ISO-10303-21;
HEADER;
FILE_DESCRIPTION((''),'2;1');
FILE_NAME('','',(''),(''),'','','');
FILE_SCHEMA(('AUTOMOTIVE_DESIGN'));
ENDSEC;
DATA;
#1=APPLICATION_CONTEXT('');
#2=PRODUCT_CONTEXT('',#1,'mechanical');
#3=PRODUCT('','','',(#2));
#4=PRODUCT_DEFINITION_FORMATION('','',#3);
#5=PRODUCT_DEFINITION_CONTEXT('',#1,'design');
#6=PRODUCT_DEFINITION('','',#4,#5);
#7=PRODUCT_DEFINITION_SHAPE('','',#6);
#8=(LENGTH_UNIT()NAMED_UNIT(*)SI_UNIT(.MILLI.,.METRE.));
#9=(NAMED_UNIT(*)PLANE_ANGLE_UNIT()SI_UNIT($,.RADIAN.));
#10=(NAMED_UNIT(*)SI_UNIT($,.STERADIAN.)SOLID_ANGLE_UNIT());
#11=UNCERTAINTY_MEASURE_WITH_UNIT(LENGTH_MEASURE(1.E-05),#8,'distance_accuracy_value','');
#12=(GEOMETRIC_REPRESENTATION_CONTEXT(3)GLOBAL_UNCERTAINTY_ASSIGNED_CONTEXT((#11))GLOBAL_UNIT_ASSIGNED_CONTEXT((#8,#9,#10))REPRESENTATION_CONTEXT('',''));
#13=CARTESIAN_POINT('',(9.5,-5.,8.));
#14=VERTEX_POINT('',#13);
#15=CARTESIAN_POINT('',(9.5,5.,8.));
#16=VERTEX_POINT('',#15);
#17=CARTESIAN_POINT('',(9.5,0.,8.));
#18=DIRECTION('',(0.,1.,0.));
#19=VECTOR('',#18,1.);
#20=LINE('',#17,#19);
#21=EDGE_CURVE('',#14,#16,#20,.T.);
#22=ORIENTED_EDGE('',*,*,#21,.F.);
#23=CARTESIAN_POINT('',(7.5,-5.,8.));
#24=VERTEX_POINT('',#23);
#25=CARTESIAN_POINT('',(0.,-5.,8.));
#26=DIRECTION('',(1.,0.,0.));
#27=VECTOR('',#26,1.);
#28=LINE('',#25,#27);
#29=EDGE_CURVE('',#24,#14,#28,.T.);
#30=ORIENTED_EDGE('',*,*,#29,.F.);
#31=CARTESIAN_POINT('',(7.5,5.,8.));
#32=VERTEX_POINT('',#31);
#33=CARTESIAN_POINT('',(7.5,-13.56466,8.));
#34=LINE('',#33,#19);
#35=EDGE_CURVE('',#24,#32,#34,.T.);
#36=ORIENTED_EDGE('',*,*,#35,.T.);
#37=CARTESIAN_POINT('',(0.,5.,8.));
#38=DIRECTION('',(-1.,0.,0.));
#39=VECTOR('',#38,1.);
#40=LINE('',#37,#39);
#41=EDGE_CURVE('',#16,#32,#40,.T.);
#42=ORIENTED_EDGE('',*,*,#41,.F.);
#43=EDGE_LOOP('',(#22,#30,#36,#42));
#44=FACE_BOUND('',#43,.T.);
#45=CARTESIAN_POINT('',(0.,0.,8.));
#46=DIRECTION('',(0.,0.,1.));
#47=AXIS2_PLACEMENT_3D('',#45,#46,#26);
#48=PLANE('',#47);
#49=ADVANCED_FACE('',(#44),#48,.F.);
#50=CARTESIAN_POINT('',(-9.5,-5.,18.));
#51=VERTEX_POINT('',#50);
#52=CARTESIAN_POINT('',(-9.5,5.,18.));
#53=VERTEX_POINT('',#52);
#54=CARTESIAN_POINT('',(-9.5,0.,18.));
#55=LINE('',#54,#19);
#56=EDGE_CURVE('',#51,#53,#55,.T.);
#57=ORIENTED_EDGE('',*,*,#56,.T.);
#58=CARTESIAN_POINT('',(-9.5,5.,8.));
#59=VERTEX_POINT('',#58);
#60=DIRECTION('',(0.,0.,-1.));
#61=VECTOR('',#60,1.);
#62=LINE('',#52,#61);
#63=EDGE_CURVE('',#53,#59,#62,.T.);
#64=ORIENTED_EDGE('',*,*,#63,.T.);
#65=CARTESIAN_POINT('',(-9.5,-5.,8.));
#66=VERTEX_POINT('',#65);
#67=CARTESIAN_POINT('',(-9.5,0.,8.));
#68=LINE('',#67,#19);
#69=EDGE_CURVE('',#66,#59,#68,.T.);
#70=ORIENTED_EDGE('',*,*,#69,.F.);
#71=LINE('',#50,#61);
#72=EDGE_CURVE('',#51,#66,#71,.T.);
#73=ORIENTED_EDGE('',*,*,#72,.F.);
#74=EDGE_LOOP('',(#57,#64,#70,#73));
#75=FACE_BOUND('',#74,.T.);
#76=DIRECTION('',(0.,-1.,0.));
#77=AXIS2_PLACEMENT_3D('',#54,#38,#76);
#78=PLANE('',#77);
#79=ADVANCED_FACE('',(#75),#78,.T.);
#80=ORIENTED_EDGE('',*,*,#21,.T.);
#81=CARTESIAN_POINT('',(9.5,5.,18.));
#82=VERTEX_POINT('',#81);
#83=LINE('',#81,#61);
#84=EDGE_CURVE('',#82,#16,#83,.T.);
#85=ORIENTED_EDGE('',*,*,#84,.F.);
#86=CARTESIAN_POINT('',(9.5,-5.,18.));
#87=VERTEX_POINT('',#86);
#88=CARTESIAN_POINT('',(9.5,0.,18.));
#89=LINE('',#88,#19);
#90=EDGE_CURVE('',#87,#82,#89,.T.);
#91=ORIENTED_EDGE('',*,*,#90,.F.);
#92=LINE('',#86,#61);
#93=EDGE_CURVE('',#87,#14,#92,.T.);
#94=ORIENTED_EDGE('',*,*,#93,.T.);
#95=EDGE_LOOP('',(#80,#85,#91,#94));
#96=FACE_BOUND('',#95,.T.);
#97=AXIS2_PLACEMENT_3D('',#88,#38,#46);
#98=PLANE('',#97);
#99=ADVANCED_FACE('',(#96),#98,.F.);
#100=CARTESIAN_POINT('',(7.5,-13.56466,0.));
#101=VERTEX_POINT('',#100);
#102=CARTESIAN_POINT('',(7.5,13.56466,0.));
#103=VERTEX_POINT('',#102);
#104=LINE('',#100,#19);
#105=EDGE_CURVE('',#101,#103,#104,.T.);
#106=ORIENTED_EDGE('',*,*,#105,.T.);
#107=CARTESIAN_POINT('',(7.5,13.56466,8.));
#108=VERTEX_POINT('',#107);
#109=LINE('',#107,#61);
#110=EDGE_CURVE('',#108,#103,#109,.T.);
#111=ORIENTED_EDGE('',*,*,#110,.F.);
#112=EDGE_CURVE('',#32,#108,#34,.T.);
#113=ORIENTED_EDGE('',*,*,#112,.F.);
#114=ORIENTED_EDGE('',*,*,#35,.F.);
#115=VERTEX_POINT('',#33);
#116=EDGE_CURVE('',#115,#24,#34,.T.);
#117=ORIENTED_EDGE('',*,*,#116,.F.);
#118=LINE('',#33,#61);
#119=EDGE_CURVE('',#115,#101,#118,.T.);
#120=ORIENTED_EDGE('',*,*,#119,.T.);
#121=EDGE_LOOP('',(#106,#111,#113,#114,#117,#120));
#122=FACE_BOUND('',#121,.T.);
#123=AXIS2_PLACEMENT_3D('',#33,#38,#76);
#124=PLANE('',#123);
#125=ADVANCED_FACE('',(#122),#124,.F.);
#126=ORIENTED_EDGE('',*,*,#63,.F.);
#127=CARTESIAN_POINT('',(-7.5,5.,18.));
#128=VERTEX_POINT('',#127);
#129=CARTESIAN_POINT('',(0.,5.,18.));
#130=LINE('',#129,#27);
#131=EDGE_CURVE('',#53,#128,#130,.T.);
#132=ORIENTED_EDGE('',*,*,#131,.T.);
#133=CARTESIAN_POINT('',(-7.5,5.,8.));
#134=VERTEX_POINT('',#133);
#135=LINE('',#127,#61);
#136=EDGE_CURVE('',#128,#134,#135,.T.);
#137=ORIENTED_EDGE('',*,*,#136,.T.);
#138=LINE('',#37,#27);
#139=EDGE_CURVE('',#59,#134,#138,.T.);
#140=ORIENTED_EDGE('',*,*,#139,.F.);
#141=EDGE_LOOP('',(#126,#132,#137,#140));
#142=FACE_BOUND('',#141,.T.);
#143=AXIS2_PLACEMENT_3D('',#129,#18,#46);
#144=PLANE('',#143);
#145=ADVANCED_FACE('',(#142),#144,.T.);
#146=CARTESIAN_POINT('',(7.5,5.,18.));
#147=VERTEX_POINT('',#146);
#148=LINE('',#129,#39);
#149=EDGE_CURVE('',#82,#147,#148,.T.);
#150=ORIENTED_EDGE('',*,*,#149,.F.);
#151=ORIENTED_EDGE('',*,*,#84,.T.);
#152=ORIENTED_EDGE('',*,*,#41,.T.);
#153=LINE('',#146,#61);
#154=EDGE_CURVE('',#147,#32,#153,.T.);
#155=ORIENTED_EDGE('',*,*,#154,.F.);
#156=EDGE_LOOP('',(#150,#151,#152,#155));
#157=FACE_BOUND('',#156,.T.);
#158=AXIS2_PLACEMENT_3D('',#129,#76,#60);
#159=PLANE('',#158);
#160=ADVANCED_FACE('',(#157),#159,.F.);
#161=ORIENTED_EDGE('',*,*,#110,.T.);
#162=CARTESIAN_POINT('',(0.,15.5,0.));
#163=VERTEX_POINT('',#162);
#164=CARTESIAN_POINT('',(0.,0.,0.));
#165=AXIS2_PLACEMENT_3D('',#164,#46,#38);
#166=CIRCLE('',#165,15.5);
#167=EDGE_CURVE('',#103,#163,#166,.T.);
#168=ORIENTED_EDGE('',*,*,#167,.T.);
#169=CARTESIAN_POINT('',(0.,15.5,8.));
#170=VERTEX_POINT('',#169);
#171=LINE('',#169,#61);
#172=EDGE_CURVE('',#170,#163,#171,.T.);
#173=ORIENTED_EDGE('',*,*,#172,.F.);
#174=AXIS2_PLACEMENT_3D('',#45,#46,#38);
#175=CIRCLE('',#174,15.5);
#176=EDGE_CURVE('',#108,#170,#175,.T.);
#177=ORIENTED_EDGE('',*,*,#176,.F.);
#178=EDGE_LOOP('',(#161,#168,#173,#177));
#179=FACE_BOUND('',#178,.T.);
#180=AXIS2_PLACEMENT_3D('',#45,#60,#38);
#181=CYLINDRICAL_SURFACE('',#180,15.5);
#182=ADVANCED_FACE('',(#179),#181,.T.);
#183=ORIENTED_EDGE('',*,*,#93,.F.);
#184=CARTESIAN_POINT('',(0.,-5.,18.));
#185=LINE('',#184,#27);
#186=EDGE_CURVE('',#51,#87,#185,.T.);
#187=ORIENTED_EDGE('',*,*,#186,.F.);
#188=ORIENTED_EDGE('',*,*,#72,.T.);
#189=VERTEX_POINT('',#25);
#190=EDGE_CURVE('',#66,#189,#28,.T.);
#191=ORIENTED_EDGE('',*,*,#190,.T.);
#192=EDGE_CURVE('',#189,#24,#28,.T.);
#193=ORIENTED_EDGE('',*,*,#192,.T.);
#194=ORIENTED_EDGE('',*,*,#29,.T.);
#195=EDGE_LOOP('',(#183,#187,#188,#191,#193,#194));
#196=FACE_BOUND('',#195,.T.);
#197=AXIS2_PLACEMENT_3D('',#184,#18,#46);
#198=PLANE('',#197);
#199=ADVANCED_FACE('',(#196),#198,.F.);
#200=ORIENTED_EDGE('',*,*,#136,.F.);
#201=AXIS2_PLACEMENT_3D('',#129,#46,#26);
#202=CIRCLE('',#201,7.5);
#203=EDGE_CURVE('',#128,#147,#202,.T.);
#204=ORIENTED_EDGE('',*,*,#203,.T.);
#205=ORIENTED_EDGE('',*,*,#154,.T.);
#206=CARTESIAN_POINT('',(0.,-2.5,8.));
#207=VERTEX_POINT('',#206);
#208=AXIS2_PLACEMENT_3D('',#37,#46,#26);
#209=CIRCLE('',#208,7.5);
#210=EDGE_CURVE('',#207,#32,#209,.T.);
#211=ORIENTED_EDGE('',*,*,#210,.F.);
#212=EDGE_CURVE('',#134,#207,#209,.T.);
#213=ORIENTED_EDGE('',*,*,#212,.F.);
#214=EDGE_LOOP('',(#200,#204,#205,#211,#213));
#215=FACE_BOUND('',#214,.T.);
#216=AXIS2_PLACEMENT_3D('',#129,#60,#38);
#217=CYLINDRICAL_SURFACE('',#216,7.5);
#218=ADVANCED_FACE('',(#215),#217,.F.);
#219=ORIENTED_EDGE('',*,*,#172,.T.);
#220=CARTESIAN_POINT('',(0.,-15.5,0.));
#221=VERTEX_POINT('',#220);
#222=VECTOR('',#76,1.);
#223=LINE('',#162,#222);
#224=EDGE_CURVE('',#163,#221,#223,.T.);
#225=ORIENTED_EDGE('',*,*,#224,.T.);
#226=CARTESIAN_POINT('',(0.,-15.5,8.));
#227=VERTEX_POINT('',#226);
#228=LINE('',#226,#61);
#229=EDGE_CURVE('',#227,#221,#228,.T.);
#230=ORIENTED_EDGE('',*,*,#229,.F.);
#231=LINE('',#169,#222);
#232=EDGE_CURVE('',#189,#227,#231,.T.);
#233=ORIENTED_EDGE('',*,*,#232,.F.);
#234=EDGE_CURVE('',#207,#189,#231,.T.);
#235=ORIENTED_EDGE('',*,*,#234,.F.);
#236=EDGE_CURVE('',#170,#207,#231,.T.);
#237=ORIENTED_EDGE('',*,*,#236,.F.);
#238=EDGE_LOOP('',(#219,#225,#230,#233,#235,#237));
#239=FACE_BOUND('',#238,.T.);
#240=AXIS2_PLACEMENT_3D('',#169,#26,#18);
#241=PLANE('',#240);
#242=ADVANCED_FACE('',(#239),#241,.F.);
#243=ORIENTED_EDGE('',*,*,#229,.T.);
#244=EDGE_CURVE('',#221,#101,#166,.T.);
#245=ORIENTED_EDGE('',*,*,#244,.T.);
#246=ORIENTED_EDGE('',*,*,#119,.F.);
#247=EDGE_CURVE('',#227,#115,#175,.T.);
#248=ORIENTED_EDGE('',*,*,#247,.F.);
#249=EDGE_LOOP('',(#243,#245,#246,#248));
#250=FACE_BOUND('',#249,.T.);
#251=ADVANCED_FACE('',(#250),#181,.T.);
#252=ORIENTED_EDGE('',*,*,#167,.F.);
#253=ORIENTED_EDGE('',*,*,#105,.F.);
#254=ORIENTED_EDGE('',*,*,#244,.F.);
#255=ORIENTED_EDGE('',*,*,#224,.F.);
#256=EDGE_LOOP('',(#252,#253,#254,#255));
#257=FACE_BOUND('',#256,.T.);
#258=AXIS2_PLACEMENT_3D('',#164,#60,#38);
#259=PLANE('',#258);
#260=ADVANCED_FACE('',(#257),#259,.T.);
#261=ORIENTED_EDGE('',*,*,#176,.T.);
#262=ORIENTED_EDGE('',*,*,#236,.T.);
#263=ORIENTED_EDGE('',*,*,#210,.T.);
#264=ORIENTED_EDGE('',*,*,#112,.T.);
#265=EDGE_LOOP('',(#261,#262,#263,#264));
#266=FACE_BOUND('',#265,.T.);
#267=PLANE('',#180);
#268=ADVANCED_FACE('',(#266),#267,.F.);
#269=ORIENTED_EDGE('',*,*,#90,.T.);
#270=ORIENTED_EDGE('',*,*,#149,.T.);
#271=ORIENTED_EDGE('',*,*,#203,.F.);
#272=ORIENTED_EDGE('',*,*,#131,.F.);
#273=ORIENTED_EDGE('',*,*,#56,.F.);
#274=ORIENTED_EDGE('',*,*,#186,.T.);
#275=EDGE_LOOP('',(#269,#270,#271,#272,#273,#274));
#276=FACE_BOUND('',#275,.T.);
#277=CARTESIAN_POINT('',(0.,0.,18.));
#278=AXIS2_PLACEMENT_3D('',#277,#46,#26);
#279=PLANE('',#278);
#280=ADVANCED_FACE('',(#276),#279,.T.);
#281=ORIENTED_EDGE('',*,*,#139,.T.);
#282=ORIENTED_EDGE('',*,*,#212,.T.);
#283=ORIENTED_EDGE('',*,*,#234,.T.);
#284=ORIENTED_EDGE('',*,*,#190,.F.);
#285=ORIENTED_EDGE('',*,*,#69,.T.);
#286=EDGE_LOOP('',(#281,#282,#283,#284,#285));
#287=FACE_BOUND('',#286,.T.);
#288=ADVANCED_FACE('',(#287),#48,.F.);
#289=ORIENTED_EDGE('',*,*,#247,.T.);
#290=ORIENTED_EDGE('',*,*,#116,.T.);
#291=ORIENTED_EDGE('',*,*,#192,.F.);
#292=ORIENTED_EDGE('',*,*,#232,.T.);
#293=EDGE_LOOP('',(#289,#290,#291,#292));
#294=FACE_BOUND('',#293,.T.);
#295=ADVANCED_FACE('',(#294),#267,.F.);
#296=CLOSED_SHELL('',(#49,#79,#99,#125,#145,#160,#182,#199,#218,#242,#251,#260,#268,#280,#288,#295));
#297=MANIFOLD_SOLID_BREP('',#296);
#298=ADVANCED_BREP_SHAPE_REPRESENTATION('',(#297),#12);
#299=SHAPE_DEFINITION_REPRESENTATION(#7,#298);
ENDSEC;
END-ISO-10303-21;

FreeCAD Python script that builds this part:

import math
import FreeCAD as App
import Part
import Sketcher

doc = App.newDocument("Part")
body = doc.addObject("PartDesign::Body", "Body")

sketch1 = body.newObject("Sketcher::SketchObject", "Sketch")
sketch1.AttachmentSupport = (doc.getObject("XY_Plane"), [""])
sketch1.MapMode = "FlatFace"
sketch1.addGeometry([
    Part.LineSegment(App.Vector(8, -14, 0), App.Vector(8, 14, 0)),
    Part.ArcOfCircle(Part.Circle(App.Vector(0, 0, 0), App.Vector(0, 0, 1), 16), math.radians(61), math.radians(90)),
    Part.LineSegment(App.Vector(0, 16, 0), App.Vector(0, -16, 0)),
    Part.ArcOfCircle(Part.Circle(App.Vector(0, 0, 0), App.Vector(0, 0, 1), 16), math.radians(-90), math.radians(-61)),
], False)
sketch1.addConstraint([
    Sketcher.Constraint("Coincident", 0, 2, 1, 1),
    Sketcher.Constraint("Coincident", 1, 2, 2, 1),
    Sketcher.Constraint("Coincident", 2, 2, 3, 1),
    Sketcher.Constraint("Coincident", 3, 2, 0, 1),
    Sketcher.Constraint("Vertical", 0),
    Sketcher.Constraint("Vertical", 2),
    Sketcher.Constraint("Coincident", 1, 3, -1, 1),
    Sketcher.Constraint("Coincident", 3, 3, -1, 1),
    Sketcher.Constraint("Equal", 1, 3),
    Sketcher.Constraint("PointOnObject", 1, 2, -2),
    Sketcher.Constraint("Radius", 1, 15.5),
    Sketcher.Constraint("DistanceX", -1, 1, 0, 2, 7.5),
])
pad1 = body.newObject("PartDesign::Pad", "Pad")
pad1.Profile = sketch1
pad1.Length = 8

sketch2 = body.newObject("Sketcher::SketchObject", "Sketch001")
sketch2.AttachmentSupport = (doc.getObject("XY_Plane"), [""])
sketch2.MapMode = "FlatFace"
sketch2.AttachmentOffset = App.Placement(App.Vector(0, 0, 8), App.Rotation())
sketch2.addGeometry([
    Part.LineSegment(App.Vector(9.5, -5, 0), App.Vector(9.5, 5, 0)),
    Part.LineSegment(App.Vector(9.5, 5, 0), App.Vector(7.5, 5, 0)),
    Part.ArcOfCircle(Part.Circle(App.Vector(0, 5, 0), App.Vector(0, 0, 1), 7.5), math.radians(-90), math.radians(0)),
    Part.ArcOfCircle(Part.Circle(App.Vector(0, 5, 0), App.Vector(0, 0, 1), 7.5), math.radians(180), math.radians(270)),
    Part.LineSegment(App.Vector(-7.5, 5, 0), App.Vector(-9.5, 5, 0)),
    Part.LineSegment(App.Vector(-9.5, 5, 0), App.Vector(-9.5, -5, 0)),
    Part.LineSegment(App.Vector(-9.5, -5, 0), App.Vector(9.5, -5, 0)),
], False)
sketch2.addConstraint([
    Sketcher.Constraint("Coincident", 0, 2, 1, 1),
    Sketcher.Constraint("Coincident", 1, 2, 2, 2),
    Sketcher.Constraint("Tangent", 2, 1, 3, 2),
    Sketcher.Constraint("Coincident", 3, 1, 4, 1),
    Sketcher.Constraint("Coincident", 4, 2, 5, 1),
    Sketcher.Constraint("Coincident", 5, 2, 6, 1),
    Sketcher.Constraint("Coincident", 6, 2, 0, 1),
    Sketcher.Constraint("Vertical", 0),
    Sketcher.Constraint("Horizontal", 1),
    Sketcher.Constraint("Horizontal", 4),
    Sketcher.Constraint("Vertical", 5),
    Sketcher.Constraint("Horizontal", 6),
    Sketcher.Constraint("Equal", 2, 3),
    Sketcher.Constraint("Symmetric", 0, 2, 5, 2, -1, 1),
    Sketcher.Constraint("Symmetric", 1, 2, 3, 1, -2),
    Sketcher.Constraint("PointOnObject", 2, 1, -2),
    Sketcher.Constraint("Horizontal", 3, 3, 0, 2),
    Sketcher.Constraint("Radius", 2, 7.5),
    Sketcher.Constraint("DistanceX", 1, 2, 1, 1, 2.0),
    Sketcher.Constraint("DistanceY", 0, 1, 0, 2, 10.0),
])
pad2 = body.newObject("PartDesign::Pad", "Pad001")
pad2.Profile = sketch2
pad2.Length = 10

doc.recompute()
